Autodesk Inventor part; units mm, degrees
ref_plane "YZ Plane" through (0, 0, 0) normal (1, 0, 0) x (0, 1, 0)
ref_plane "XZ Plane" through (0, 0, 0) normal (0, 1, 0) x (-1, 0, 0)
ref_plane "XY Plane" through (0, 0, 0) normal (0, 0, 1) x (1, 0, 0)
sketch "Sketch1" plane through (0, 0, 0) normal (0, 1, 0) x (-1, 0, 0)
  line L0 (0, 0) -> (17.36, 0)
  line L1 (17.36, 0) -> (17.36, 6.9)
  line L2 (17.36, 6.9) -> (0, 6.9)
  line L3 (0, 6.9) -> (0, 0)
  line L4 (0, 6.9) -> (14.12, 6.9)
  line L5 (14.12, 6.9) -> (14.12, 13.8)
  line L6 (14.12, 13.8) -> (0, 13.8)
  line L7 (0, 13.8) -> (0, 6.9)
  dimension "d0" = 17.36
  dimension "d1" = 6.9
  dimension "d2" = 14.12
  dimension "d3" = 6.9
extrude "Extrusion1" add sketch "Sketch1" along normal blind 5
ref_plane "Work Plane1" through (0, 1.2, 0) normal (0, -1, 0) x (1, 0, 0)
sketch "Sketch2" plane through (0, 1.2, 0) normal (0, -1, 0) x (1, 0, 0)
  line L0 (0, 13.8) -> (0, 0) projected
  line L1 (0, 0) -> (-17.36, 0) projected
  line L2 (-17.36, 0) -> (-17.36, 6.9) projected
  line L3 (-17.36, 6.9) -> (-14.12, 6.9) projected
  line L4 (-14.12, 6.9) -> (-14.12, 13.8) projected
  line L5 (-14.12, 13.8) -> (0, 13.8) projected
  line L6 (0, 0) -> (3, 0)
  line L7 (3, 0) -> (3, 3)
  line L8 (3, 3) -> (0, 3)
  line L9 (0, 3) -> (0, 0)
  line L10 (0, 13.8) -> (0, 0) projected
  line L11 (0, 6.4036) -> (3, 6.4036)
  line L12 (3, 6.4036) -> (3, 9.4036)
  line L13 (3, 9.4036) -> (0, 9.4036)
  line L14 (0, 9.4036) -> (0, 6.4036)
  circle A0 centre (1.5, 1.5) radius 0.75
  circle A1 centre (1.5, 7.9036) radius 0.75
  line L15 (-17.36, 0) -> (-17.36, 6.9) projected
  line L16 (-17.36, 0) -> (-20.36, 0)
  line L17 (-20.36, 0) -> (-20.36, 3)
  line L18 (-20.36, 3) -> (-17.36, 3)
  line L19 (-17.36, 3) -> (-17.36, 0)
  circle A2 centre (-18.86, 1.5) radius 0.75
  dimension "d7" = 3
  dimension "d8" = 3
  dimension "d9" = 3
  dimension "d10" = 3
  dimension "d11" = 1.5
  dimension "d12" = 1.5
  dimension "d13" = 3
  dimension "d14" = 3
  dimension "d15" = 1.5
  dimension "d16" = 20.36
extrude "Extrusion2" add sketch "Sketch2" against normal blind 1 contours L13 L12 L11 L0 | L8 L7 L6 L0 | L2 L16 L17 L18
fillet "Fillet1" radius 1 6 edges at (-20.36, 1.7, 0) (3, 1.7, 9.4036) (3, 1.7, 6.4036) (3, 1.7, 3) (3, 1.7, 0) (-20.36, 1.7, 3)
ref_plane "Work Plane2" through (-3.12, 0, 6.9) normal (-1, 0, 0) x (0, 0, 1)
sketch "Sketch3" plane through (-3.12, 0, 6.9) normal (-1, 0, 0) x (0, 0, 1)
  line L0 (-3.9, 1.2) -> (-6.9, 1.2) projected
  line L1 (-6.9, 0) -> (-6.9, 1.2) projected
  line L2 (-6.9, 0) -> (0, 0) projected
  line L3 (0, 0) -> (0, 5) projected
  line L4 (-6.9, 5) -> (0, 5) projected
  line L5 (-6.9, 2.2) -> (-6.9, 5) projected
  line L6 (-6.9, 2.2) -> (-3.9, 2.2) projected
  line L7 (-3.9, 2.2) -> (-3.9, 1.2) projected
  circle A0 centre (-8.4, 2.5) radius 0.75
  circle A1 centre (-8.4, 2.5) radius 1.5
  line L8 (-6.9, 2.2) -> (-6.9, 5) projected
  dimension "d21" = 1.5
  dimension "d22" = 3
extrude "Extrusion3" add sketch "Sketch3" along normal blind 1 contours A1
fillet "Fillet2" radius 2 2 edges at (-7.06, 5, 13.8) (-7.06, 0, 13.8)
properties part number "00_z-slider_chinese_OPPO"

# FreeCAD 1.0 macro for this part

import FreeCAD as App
import Part
import Sketcher

V = App.Vector
Q = App.Units.Quantity


def edges_at(feature, points):
    """Names of the edges that pass closest to the given points."""
    edges = feature.Shape.Edges
    near = lambda p: min(range(len(edges)), key=lambda i: edges[i].distToShape(Part.Vertex(*p))[0])
    return sorted({f"Edge{near(p) + 1}" for p in points})


def add_polygon(sketch, points):
    """Adds a closed chain of lines whose ends are joined by coincident constraints."""
    first, n = sketch.GeometryCount, len(points)
    for a, b in zip(points, points[1:] + points[:1]):
        sketch.addGeometry(Part.LineSegment(App.Vector(*a, 0), App.Vector(*b, 0)), False)
    for i in range(n):
        sketch.addConstraint(Sketcher.Constraint("Coincident", first + i, 2, first + (i + 1) % n, 1))

doc = App.newDocument("Part")
params = doc.addObject("Spreadsheet::Sheet", "Params")
for row, (alias, value) in enumerate([
    ("sketch1_height", "6.9 mm"),
    ("sketch1_width", "17.36 mm"),
    ("sketch1_width2", "14.12 mm"),
    ("pad1_length", "5 mm"),
    ("sketch2_diameter", "1.5 mm"),
    ("sketch2_width", "3 mm"),
    ("pad2_length", "1 mm"),
    ("fillet_radius", "1 mm"),
    ("sketch3_diameter", "3 mm"),
    ("sketch3_diameter2", "1.5 mm"),
    ("pad3_length", "1 mm"),
    ("fillet2_radius", "2 mm"),
], start=1):
    params.set(f"A{row}", alias)
    params.set(f"B{row}", "=" + value)
    params.setAlias(f"B{row}", alias)

body = doc.addObject("PartDesign::Body", "Body")
body.AllowCompound = True

sketch1 = body.newObject("Sketcher::SketchObject", "Sketch")
sketch1.AttachmentSupport = (doc.getObject("XZ_Plane"), [""])
sketch1.MapMode = "FlatFace"
add_polygon(sketch1, [(0, 0), (-17.4, 0), (-17.4, 6.9), (-14.1, 6.9), (-14.1, 13.8), (0, 13.8)])
sketch1.addConstraint(Sketcher.Constraint("Horizontal", 0))
sketch1.addConstraint(Sketcher.Constraint("Vertical", 1))
sketch1.addConstraint(Sketcher.Constraint("Horizontal", 2))
sketch1.addConstraint(Sketcher.Constraint("Vertical", 3))
sketch1.addConstraint(Sketcher.Constraint("Horizontal", 4))
sketch1.addConstraint(Sketcher.Constraint("Vertical", 5))
sketch1.addConstraint(Sketcher.Constraint("Coincident", 5, 2, -1, 1))
sketch1.addConstraint(Sketcher.Constraint("Equal", 1, 3))
sketch1.addConstraint(Sketcher.Constraint("DistanceY", 1, 1, 1, 2, Q("6.9 mm")))
sketch1.addConstraint(Sketcher.Constraint("DistanceX", 0, 2, 0, 1, Q("17.36 mm")))
sketch1.addConstraint(Sketcher.Constraint("DistanceX", 4, 1, 4, 2, Q("14.12 mm")))
sketch1.setExpression("Constraints[14]", "Params.sketch1_height")
sketch1.setExpression("Constraints[15]", "Params.sketch1_width")
sketch1.setExpression("Constraints[16]", "Params.sketch1_width2")
pad1 = body.newObject("PartDesign::Pad", "Pad")
pad1.Profile = sketch1
pad1.setExpression("Length", "Params.pad1_length")
pad1.Reversed = True

sketch2 = body.newObject("Sketcher::SketchObject", "Sketch001")
sketch2.AttachmentSupport = (doc.getObject("XZ_Plane"), [""])
sketch2.MapMode = "FlatFace"
sketch2.AttachmentOffset = App.Placement(V(0, 0, -1.2), App.Rotation())
add_polygon(sketch2, [(3, 9.4), (0, 9.4), (0, 6.4), (3, 6.4)])
sketch2.addGeometry(Part.Circle(V(1.5, 7.9, 0), V(0, 0, 1), 0.8), False)
add_polygon(sketch2, [(3, 3), (0, 3), (0, 0), (3, 0)])
sketch2.addGeometry(Part.Circle(V(1.5, 1.5, 0), V(0, 0, 1), 0.8), False)
add_polygon(sketch2, [(-17.4, 0), (-17.4, 3), (-20.4, 3), (-20.4, 0)])
sketch2.addGeometry(Part.Circle(V(-18.9, 1.5, 0), V(0, 0, 1), 0.8), False)
sketch2.addConstraint(Sketcher.Constraint("Horizontal", 0))
sketch2.addConstraint(Sketcher.Constraint("Vertical", 1))
sketch2.addConstraint(Sketcher.Constraint("Horizontal", 2))
sketch2.addConstraint(Sketcher.Constraint("Vertical", 3))
sketch2.addConstraint(Sketcher.Constraint("Horizontal", 5))
sketch2.addConstraint(Sketcher.Constraint("Vertical", 6))
sketch2.addConstraint(Sketcher.Constraint("Horizontal", 7))
sketch2.addConstraint(Sketcher.Constraint("Vertical", 8))
sketch2.addConstraint(Sketcher.Constraint("Vertical", 10))
sketch2.addConstraint(Sketcher.Constraint("Horizontal", 11))
sketch2.addConstraint(Sketcher.Constraint("Vertical", 12))
sketch2.addConstraint(Sketcher.Constraint("Horizontal", 13))
sketch2.addConstraint(Sketcher.Constraint("Coincident", 6, 2, -1, 1))
sketch2.addConstraint(Sketcher.Constraint("Equal", 4, 9))
sketch2.addConstraint(Sketcher.Constraint("Equal", 9, 14))
sketch2.addConstraint(Sketcher.Constraint("PointOnObject", 0, 2, -2))
sketch2.addConstraint(Sketcher.Constraint("PointOnObject", 12, 2, -1))
sketch2.addConstraint(Sketcher.Constraint("Horizontal", 9, 3, 14, 3))
sketch2.addConstraint(Sketcher.Constraint("Horizontal", 8, 2, 10, 2))
sketch2.addConstraint(Sketcher.Constraint("Vertical", 4, 3, 9, 3))
sketch2.addConstraint(Sketcher.Constraint("Vertical", 3, 2, 7, 2))
sketch2.addConstraint(Sketcher.Constraint("Equal", 7, 11))
sketch2.addConstraint(Sketcher.Constraint("Equal", 13, 1))
sketch2.addConstraint(Sketcher.Constraint("Equal", 3, 6))
sketch2.addConstraint(Sketcher.Constraint("Diameter", 4, Q("1.5 mm")))
sketch2.addConstraint(Sketcher.Constraint("DistanceX", 0, 2, 0, 1, Q("3 mm")))
sketch2.addConstraint(Sketcher.Constraint("DistanceX", -1, 1, 4, 3, Q("1.5 mm")))
sketch2.addConstraint(Sketcher.Constraint("DistanceY", -1, 1, 9, 3, Q("1.5 mm")))
sketch2.addConstraint(Sketcher.Constraint("DistanceY", 4, 3, 0, 2, Q("1.5 mm")))
sketch2.addConstraint(Sketcher.Constraint("DistanceX", 14, 3, 10, 2, Q("1.5 mm")))
sketch2.addConstraint(Sketcher.Constraint("DistanceX", 11, 2, -1, 1, Q("20.36 mm")))
sketch2.addConstraint(Sketcher.Constraint("DistanceY", -1, 1, 4, 3, Q("7.9036 mm")))
sketch2.setExpression("Constraints[36]", "Params.sketch2_diameter")
sketch2.setExpression("Constraints[37]", "Params.sketch2_width")
pad2 = body.newObject("PartDesign::Pad", "Pad001")
pad2.Profile = sketch2
pad2.setExpression("Length", "Params.pad2_length")
pad2.Reversed = True
doc.recompute()

fillet = body.newObject("PartDesign::Fillet", "Fillet")
fillet.Base = (pad2, edges_at(pad2, [
    (-20.36, 1.7, 0),
    (3, 1.7, 9.404),
    (3, 1.7, 6.404),
    (3, 1.7, 3),
    (3, 1.7, 0),
    (-20.36, 1.7, 3),
]))
fillet.setExpression("Radius", "Params.fillet_radius")

sketch3 = body.newObject("Sketcher::SketchObject", "Sketch002")
sketch3.AttachmentSupport = (doc.getObject("YZ_Plane"), [""])
sketch3.MapMode = "FlatFace"
sketch3.AttachmentOffset = App.Placement(V(0, 0, -3.12), App.Rotation())
sketch3.addGeometry(Part.Circle(V(2.5, -1.5, 0), V(0, 0, 1), 1.5), False)
sketch3.addGeometry(Part.Circle(V(2.5, -1.5, 0), V(0, 0, 1), 0.8), False)
sketch3.addConstraint(Sketcher.Constraint("Coincident", 1, 3, 0, 3))
sketch3.addConstraint(Sketcher.Constraint("Diameter", 0, Q("3 mm")))
sketch3.addConstraint(Sketcher.Constraint("Diameter", 1, Q("1.5 mm")))
sketch3.addConstraint(Sketcher.Constraint("DistanceY", 0, 3, -1, 1, Q("1.5 mm")))
sketch3.addConstraint(Sketcher.Constraint("DistanceX", -1, 1, 0, 3, Q("2.5 mm")))
sketch3.setExpression("Constraints[1]", "Params.sketch3_diameter")
sketch3.setExpression("Constraints[2]", "Params.sketch3_diameter2")
pad3 = body.newObject("PartDesign::Pad", "Pad002")
pad3.Profile = sketch3
pad3.setExpression("Length", "Params.pad3_length")
pad3.Reversed = True
doc.recompute()

fillet2 = body.newObject("PartDesign::Fillet", "Fillet001")
fillet2.Base = (pad3, edges_at(pad3, [(-7.06, 5, 13.8), (-7.06, 0, 13.8)]))
fillet2.setExpression("Radius", "Params.fillet2_radius")

doc.recompute()
